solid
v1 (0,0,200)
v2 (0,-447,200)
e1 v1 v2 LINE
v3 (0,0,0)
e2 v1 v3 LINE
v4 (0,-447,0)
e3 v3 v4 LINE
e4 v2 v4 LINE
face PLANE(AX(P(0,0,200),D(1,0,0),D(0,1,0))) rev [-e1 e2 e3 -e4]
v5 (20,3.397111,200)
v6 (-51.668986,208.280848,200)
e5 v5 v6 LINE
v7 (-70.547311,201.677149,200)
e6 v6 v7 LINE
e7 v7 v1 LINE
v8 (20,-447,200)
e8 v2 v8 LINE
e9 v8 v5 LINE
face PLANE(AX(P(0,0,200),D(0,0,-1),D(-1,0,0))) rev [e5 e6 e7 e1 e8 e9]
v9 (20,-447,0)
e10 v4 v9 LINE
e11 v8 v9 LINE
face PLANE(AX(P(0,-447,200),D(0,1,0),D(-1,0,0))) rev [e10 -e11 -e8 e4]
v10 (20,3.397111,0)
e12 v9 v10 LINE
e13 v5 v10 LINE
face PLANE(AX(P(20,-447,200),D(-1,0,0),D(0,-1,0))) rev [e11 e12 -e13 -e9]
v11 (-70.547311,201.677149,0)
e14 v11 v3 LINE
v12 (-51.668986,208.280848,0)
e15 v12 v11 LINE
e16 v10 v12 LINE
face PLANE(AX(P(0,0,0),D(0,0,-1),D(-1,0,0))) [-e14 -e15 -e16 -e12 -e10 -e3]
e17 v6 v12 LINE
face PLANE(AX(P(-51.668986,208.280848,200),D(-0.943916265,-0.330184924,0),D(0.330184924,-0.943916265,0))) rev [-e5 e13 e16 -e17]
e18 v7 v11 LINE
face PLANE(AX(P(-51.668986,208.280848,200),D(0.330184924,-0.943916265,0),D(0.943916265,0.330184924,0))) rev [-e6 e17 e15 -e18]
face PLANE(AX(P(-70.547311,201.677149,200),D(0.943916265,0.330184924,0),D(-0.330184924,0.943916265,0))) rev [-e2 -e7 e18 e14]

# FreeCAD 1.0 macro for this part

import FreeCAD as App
import Part
import Sketcher
from FreeCAD import Vector
Q = App.Units.Quantity

doc = App.newDocument("Part")
body = doc.addObject("PartDesign::Body", "Body")

sketch1 = body.newObject("Sketcher::SketchObject", "Sketch")
sketch1.AttachmentSupport = (doc.getObject("XY_Plane"), [""])
sketch1.MapMode = "FlatFace"
sketch1.addGeometry([
    Part.LineSegment(Vector(0, 0, 0), Vector(0, -447, 0)),
    Part.LineSegment(Vector(0, -447, 0), Vector(20, -447, 0)),
    Part.LineSegment(Vector(20, -447, 0), Vector(20, 3.397111, 0)),
    Part.LineSegment(Vector(20, 3.397111, 0), Vector(-51.668986, 208.280848, 0)),
    Part.LineSegment(Vector(-51.668986, 208.280848, 0), Vector(-70.547311, 201.677149, 0)),
    Part.LineSegment(Vector(-70.547311, 201.677149, 0), Vector(0, 0, 0)),
], False)
sketch1.addConstraint([
    Sketcher.Constraint("Coincident", 0, 2, 1, 1),
    Sketcher.Constraint("Coincident", 1, 2, 2, 1),
    Sketcher.Constraint("Coincident", 2, 2, 3, 1),
    Sketcher.Constraint("Coincident", 3, 2, 4, 1),
    Sketcher.Constraint("Coincident", 4, 2, 5, 1),
    Sketcher.Constraint("Coincident", 5, 2, 0, 1),
    Sketcher.Constraint("Vertical", 0),
    Sketcher.Constraint("Horizontal", 1),
    Sketcher.Constraint("Vertical", 2),
    Sketcher.Constraint("Coincident", 5, 2, -1, 1),
    Sketcher.Constraint("Perpendicular", 3, 4),
    Sketcher.Constraint("Perpendicular", 4, 5),
    Sketcher.Constraint("DistanceX", 1, 1, 1, 2, 20.0),
    Sketcher.Constraint("DistanceY", 0, 2, 0, 1, 447.0),
    Sketcher.Constraint("Distance", 4, 20.0),
    Sketcher.Constraint("Angle", 3, Q("109.28 deg")),
    Sketcher.Constraint("Distance", 5, 213.66),
])
pad1 = body.newObject("PartDesign::Pad", "Pad")
pad1.Profile = sketch1
pad1.Length = 200

doc.recompute()
